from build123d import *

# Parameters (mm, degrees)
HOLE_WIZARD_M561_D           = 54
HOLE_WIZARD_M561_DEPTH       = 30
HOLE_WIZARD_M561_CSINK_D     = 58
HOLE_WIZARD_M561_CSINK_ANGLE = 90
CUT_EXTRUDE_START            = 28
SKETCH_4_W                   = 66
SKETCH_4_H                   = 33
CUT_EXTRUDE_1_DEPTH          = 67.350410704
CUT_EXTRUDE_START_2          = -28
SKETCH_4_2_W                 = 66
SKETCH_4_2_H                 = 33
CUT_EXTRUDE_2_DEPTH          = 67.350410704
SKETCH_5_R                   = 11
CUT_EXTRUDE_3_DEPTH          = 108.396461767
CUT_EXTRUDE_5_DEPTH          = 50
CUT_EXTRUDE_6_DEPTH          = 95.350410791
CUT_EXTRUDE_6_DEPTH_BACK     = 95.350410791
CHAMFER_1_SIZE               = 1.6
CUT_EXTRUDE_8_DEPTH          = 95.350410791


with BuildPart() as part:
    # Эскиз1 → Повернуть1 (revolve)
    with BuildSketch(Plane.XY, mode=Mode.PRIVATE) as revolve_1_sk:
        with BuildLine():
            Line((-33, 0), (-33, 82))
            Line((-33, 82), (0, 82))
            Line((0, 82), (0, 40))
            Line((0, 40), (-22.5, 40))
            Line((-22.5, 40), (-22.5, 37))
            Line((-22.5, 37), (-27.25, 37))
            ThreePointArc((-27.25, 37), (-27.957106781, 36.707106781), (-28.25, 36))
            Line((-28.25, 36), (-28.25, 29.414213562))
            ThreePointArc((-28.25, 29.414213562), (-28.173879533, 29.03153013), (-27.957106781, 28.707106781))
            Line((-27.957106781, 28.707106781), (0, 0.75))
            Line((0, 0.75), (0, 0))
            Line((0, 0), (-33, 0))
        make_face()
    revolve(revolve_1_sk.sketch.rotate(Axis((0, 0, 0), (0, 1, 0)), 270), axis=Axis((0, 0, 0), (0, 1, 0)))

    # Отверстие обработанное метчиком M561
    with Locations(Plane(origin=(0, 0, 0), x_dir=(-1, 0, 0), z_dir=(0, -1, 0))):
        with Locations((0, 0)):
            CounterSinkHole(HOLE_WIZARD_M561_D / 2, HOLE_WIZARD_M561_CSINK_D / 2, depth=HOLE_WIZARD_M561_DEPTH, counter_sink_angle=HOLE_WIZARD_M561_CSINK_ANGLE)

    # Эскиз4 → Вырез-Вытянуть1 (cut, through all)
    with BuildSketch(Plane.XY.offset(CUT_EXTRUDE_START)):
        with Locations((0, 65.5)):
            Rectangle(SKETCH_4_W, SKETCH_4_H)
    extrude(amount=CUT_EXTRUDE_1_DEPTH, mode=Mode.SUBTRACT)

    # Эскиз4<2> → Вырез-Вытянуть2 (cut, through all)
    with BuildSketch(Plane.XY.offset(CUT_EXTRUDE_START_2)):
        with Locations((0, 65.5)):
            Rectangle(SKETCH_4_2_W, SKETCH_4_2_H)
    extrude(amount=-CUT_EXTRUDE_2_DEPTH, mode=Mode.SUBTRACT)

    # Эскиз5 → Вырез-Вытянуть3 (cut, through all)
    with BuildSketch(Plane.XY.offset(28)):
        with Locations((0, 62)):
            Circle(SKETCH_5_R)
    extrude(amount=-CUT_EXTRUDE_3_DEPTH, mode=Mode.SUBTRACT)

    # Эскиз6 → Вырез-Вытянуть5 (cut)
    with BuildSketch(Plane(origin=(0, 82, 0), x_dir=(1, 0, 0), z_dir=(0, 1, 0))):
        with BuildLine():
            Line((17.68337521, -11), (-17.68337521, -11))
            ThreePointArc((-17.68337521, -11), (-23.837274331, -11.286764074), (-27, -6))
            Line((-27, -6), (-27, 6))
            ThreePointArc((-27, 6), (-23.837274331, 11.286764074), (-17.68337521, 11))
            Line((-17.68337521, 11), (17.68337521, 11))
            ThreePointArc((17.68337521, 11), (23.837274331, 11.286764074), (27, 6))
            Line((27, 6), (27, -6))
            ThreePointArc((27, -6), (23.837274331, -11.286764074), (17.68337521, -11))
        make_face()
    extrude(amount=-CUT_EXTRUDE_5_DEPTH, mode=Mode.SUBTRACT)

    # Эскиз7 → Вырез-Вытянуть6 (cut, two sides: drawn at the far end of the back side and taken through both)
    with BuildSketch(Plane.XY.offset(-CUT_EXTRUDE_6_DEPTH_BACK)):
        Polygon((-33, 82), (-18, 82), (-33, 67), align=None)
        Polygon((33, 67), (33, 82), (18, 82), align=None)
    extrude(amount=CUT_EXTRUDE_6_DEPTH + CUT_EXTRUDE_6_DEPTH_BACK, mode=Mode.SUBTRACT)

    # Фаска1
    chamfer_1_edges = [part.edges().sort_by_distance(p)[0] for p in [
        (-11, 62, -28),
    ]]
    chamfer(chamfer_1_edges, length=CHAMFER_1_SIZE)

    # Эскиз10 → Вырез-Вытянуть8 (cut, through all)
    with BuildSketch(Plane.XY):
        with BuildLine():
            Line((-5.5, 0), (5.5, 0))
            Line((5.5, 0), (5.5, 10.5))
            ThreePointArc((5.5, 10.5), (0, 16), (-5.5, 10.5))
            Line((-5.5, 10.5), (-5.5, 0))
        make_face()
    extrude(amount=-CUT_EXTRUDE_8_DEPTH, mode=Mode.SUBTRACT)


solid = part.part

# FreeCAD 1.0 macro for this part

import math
import FreeCAD as App
import Part
import Sketcher

V = App.Vector
Q = App.Units.Quantity


def edges_at(feature, points):
    """Names of the edges that pass closest to the given points."""
    edges = feature.Shape.Edges
    near = lambda p: min(range(len(edges)), key=lambda i: edges[i].distToShape(Part.Vertex(*p))[0])
    return sorted({f"Edge{near(p) + 1}" for p in points})


def add_polygon(sketch, points):
    """Adds a closed chain of lines whose ends are joined by coincident constraints."""
    first, n = sketch.GeometryCount, len(points)
    for a, b in zip(points, points[1:] + points[:1]):
        sketch.addGeometry(Part.LineSegment(App.Vector(*a, 0), App.Vector(*b, 0)), False)
    for i in range(n):
        sketch.addConstraint(Sketcher.Constraint("Coincident", first + i, 2, first + (i + 1) % n, 1))

doc = App.newDocument("Part")
params = doc.addObject("Spreadsheet::Sheet", "Params")
for row, (alias, value) in enumerate([
    ("sketch1_radius", "1 mm"),
    ("sketch1_width", "33 mm"),
    ("sketch1_height", "82 mm"),
    ("sketch1_height2", "3 mm"),
    ("sketch1_height3", "42 mm"),
    ("revolution_angle", "360 deg"),
    ("sketch2_diameter", "54 mm"),
    ("hole_diameter", "54 mm"),
    ("hole_depth", "30 mm"),
    ("hole_csink_diameter", "58 mm"),
    ("sketch3_width", "66 mm"),
    ("sketch3_height", "33 mm"),
    ("sketch4_width", "66 mm"),
    ("sketch4_height", "33 mm"),
    ("sketch5_diameter", "22 mm"),
    ("sketch6_radius", "6 mm"),
    ("sketch6_height", "12 mm"),
    ("pocket4_length", "50 mm"),
    ("sketch7_width", "15 mm"),
    ("chamfer_size", "1.6 mm"),
    ("sketch8_radius", "5.5 mm"),
    ("sketch8_height", "10.5 mm"),
], start=1):
    params.set(f"A{row}", alias)
    params.set(f"B{row}", "=" + value)
    params.setAlias(f"B{row}", alias)

body = doc.addObject("PartDesign::Body", "Body")

# Sketch on XY plane
sketch1 = body.newObject("Sketcher::SketchObject", "Sketch")
sketch1.AttachmentSupport = (doc.getObject("XY_Plane"), [""])
sketch1.MapMode = "FlatFace"
sketch1.addGeometry([
    Part.LineSegment(V(-33, 82, 0), V(-33, 0, 0)),  # 0
    Part.LineSegment(V(-33, 0, 0), V(0, 0, 0)),  # 1
    Part.LineSegment(V(0, 0, 0), V(0, 0.8, 0)),  # 2
    Part.LineSegment(V(0, 0.8, 0), V(-28, 28.7, 0)),  # 3
    Part.ArcOfCircle(Part.Circle(V(-27.3, 29.4, 0), V(0, 0, 1), 1), math.radians(180), math.radians(225)),  # 4
    Part.LineSegment(V(-28.2, 29.4, 0), V(-28.2, 36, 0)),  # 5
    Part.ArcOfCircle(Part.Circle(V(-27.2, 36, 0), V(0, 0, 1), 1), math.radians(90), math.radians(180)),  # 6
    Part.LineSegment(V(-27.2, 37, 0), V(-22.5, 37, 0)),  # 7
    Part.LineSegment(V(-22.5, 37, 0), V(-22.5, 40, 0)),  # 8
    Part.LineSegment(V(-22.5, 40, 0), V(0, 40, 0)),  # 9
    Part.LineSegment(V(0, 40, 0), V(0, 82, 0)),  # 10
    Part.LineSegment(V(0, 82, 0), V(-33, 82, 0)),  # 11
], False)
sketch1.addConstraint([
    Sketcher.Constraint("Coincident", 0, 2, 1, 1),
    Sketcher.Constraint("Coincident", 1, 2, 2, 1),
    Sketcher.Constraint("Coincident", 2, 2, 3, 1),
    Sketcher.Constraint("Tangent", 3, 2, 4, 2),
    Sketcher.Constraint("Tangent", 4, 1, 5, 1),
    Sketcher.Constraint("Tangent", 5, 2, 6, 2),
    Sketcher.Constraint("Tangent", 6, 1, 7, 1),
    Sketcher.Constraint("Coincident", 7, 2, 8, 1),
    Sketcher.Constraint("Coincident", 8, 2, 9, 1),
    Sketcher.Constraint("Coincident", 9, 2, 10, 1),
    Sketcher.Constraint("Coincident", 10, 2, 11, 1),
    Sketcher.Constraint("Coincident", 11, 2, 0, 1),
    Sketcher.Constraint("Vertical", 0),
    Sketcher.Constraint("Horizontal", 1),
    Sketcher.Constraint("Vertical", 2),
    Sketcher.Constraint("Vertical", 5),
    Sketcher.Constraint("Horizontal", 7),
    Sketcher.Constraint("Vertical", 8),
    Sketcher.Constraint("Horizontal", 9),
    Sketcher.Constraint("Vertical", 10),
    Sketcher.Constraint("Horizontal", 11),
    Sketcher.Constraint("Coincident", 1, 2, -1, 1),
    Sketcher.Constraint("Equal", 4, 6),
    Sketcher.Constraint("PointOnObject", 9, 2, -2),
    Sketcher.Constraint("Radius", 4, 1.0),
    Sketcher.Constraint("DistanceX", 1, 1, 1, 2, 33.0),
    Sketcher.Constraint("DistanceY", 0, 2, 0, 1, 82.0),
    Sketcher.Constraint("DistanceY", 8, 1, 8, 2, 3.0),
    Sketcher.Constraint("DistanceY", 10, 1, 10, 2, 42.0),
    Sketcher.Constraint("Angle", 3, Q("135 deg")),
    Sketcher.Constraint("DistanceX", 9, 1, 9, 2, 22.5),
    Sketcher.Constraint("DistanceX", 7, 1, 7, 2, 4.75),
    Sketcher.Constraint("DistanceY", 2, 1, 2, 2, 0.75),
])
sketch1.setExpression("Constraints[24]", "Params.sketch1_radius")
sketch1.setExpression("Constraints[25]", "Params.sketch1_width")
sketch1.setExpression("Constraints[26]", "Params.sketch1_height")
sketch1.setExpression("Constraints[27]", "Params.sketch1_height2")
sketch1.setExpression("Constraints[28]", "Params.sketch1_height3")
revolution = body.newObject("PartDesign::Revolution", "Revolution")
revolution.Profile = sketch1
revolution.ReferenceAxis = (sketch1, ["V_Axis"])
revolution.setExpression("Angle", "Params.revolution_angle")

# Sketch on XZ plane
sketch2 = body.newObject("Sketcher::SketchObject", "Sketch001")
sketch2.AttachmentSupport = (doc.getObject("XZ_Plane"), [""])
sketch2.MapMode = "FlatFace"
sketch2.addGeometry(Part.Circle(V(0, 0, 0), V(0, 0, 1), 27), False)
sketch2.addConstraint([
    Sketcher.Constraint("Coincident", 0, 3, -1, 1),
    Sketcher.Constraint("Diameter", 0, 54.0),
])
sketch2.setExpression("Constraints[1]", "Params.sketch2_diameter")
doc.recompute()
hole = body.newObject("PartDesign::Hole", "Hole")
hole.Profile = sketch2
hole.ThreadType = "None"
hole.setExpression("Diameter", "Params.hole_diameter")
hole.DepthType = "Dimension"
hole.setExpression("Depth", "Params.hole_depth")
hole.DrillPoint = "Flat"
hole.HoleCutType = "Countersink"
hole.setExpression("HoleCutDiameter", "Params.hole_csink_diameter")
hole.HoleCutCountersinkAngle = 90

# Sketch on XY plane
sketch3 = body.newObject("Sketcher::SketchObject", "Sketch002")
sketch3.AttachmentSupport = (doc.getObject("XY_Plane"), [""])
sketch3.MapMode = "FlatFace"
sketch3.AttachmentOffset = App.Placement(V(0, 0, 28), App.Rotation())
add_polygon(sketch3, [(-33, 82), (-33, 49), (33, 49), (33, 82)])  # lines 0-3
sketch3.addConstraint([
    Sketcher.Constraint("Vertical", 0),
    Sketcher.Constraint("Horizontal", 1),
    Sketcher.Constraint("Vertical", 2),
    Sketcher.Constraint("Horizontal", 3),
    Sketcher.Constraint("DistanceX", 1, 1, 1, 2, 66.0),
    Sketcher.Constraint("DistanceY", 0, 2, 0, 1, 33.0),
    Sketcher.Constraint("DistanceX", 0, 2, -1, 1, 33.0),
    Sketcher.Constraint("DistanceY", -1, 1, 0, 2, 49.0),
])
sketch3.setExpression("Constraints[8]", "Params.sketch3_width")
sketch3.setExpression("Constraints[9]", "Params.sketch3_height")
pocket1 = body.newObject("PartDesign::Pocket", "Pocket")
pocket1.Profile = sketch3
pocket1.Type = "ThroughAll"
pocket1.Reversed = True

# Sketch on XY plane
sketch4 = body.newObject("Sketcher::SketchObject", "Sketch003")
sketch4.AttachmentSupport = (doc.getObject("XY_Plane"), [""])
sketch4.MapMode = "FlatFace"
sketch4.AttachmentOffset = App.Placement(V(0, 0, -28), App.Rotation())
add_polygon(sketch4, [(-33, 82), (-33, 49), (33, 49), (33, 82)])  # lines 0-3
sketch4.addConstraint([
    Sketcher.Constraint("Vertical", 0),
    Sketcher.Constraint("Horizontal", 1),
    Sketcher.Constraint("Vertical", 2),
    Sketcher.Constraint("Horizontal", 3),
    Sketcher.Constraint("DistanceX", 1, 1, 1, 2, 66.0),
    Sketcher.Constraint("DistanceY", 0, 2, 0, 1, 33.0),
    Sketcher.Constraint("DistanceX", 0, 2, -1, 1, 33.0),
    Sketcher.Constraint("DistanceY", -1, 1, 0, 2, 49.0),
])
sketch4.setExpression("Constraints[8]", "Params.sketch4_width")
sketch4.setExpression("Constraints[9]", "Params.sketch4_height")
pocket2 = body.newObject("PartDesign::Pocket", "Pocket001")
pocket2.Profile = sketch4
pocket2.Type = "ThroughAll"

# Sketch on XY plane
sketch5 = body.newObject("Sketcher::SketchObject", "Sketch004")
sketch5.AttachmentSupport = (doc.getObject("XY_Plane"), [""])
sketch5.MapMode = "FlatFace"
sketch5.AttachmentOffset = App.Placement(V(0, 0, 28), App.Rotation())
sketch5.addGeometry(Part.Circle(V(0, 62, 0), V(0, 0, 1), 11), False)
sketch5.addConstraint([
    Sketcher.Constraint("PointOnObject", 0, 3, -2),
    Sketcher.Constraint("Diameter", 0, 22.0),
    Sketcher.Constraint("DistanceY", -1, 1, 0, 3, 62.0),
])
sketch5.setExpression("Constraints[1]", "Params.sketch5_diameter")
pocket3 = body.newObject("PartDesign::Pocket", "Pocket002")
pocket3.Profile = sketch5
pocket3.Type = "ThroughAll"

# Sketch on XZ plane
sketch6 = body.newObject("Sketcher::SketchObject", "Sketch005")
sketch6.AttachmentSupport = (doc.getObject("XZ_Plane"), [""])
sketch6.MapMode = "FlatFace"
sketch6.AttachmentOffset = App.Placement(V(0, 0, -82), App.Rotation())
sketch6.addGeometry([
    Part.LineSegment(V(-18, 11, 0), V(18, 11, 0)),  # 0
    Part.ArcOfCircle(Part.Circle(V(21, 6, 0), V(0, 0, 1), 6), math.radians(0), math.radians(124)),  # 1
    Part.LineSegment(V(27, 6, 0), V(27, -6, 0)),  # 2
    Part.ArcOfCircle(Part.Circle(V(21, -6, 0), V(0, 0, 1), 6), math.radians(-124), math.radians(0)),  # 3
    Part.LineSegment(V(18, -11, 0), V(-18, -11, 0)),  # 4
    Part.ArcOfCircle(Part.Circle(V(-21, -6, 0), V(0, 0, 1), 6), math.radians(180), math.radians(304)),  # 5
    Part.LineSegment(V(-27, -6, 0), V(-27, 6, 0)),  # 6
    Part.ArcOfCircle(Part.Circle(V(-21, 6, 0), V(0, 0, 1), 6), math.radians(56), math.radians(180)),  # 7
], False)
sketch6.addConstraint([
    Sketcher.Constraint("Coincident", 0, 2, 1, 2),
    Sketcher.Constraint("Tangent", 1, 1, 2, 1),
    Sketcher.Constraint("Tangent", 2, 2, 3, 2),
    Sketcher.Constraint("Coincident", 3, 1, 4, 1),
    Sketcher.Constraint("Coincident", 4, 2, 5, 2),
    Sketcher.Constraint("Tangent", 5, 1, 6, 1),
    Sketcher.Constraint("Tangent", 6, 2, 7, 2),
    Sketcher.Constraint("Coincident", 7, 1, 0, 1),
    Sketcher.Constraint("Horizontal", 0),
    Sketcher.Constraint("Vertical", 2),
    Sketcher.Constraint("Horizontal", 4),
    Sketcher.Constraint("Vertical", 6),
    Sketcher.Constraint("Equal", 1, 3),
    Sketcher.Constraint("Equal", 3, 5),
    Sketcher.Constraint("Equal", 5, 7),
    Sketcher.Constraint("Symmetric", 1, 3, 5, 3, -1, 1),
    Sketcher.Constraint("Symmetric", 3, 1, 7, 1, -1, 1),
    Sketcher.Constraint("Horizontal", 3, 3, 5, 3),
    Sketcher.Constraint("Radius", 1, 6.0),
    Sketcher.Constraint("DistanceY", 2, 2, 2, 1, 12.0),
    Sketcher.Constraint("DistanceX", -1, 1, 1, 3, 21.0),
    Sketcher.Constraint("DistanceY", -1, 1, 0, 2, 11.0),
])
sketch6.setExpression("Constraints[18]", "Params.sketch6_radius")
sketch6.setExpression("Constraints[19]", "Params.sketch6_height")
pocket4 = body.newObject("PartDesign::Pocket", "Pocket003")
pocket4.Profile = sketch6
pocket4.setExpression("Length", "Params.pocket4_length")
pocket4.Reversed = True

# Sketch on XY plane
sketch7 = body.newObject("Sketcher::SketchObject", "Sketch006")
sketch7.AttachmentSupport = (doc.getObject("XY_Plane"), [""])
sketch7.MapMode = "FlatFace"
add_polygon(sketch7, [(-18, 82), (-33, 82), (-33, 67)])  # lines 0-2
add_polygon(sketch7, [(33, 67), (33, 82), (18, 82)])  # lines 3-5
sketch7.addConstraint([
    Sketcher.Constraint("Horizontal", 0),
    Sketcher.Constraint("Vertical", 1),
    Sketcher.Constraint("Vertical", 3),
    Sketcher.Constraint("Horizontal", 4),
    Sketcher.Constraint("Symmetric", 0, 2, 3, 2, -2),
    Sketcher.Constraint("Perpendicular", 2, 5),
    Sketcher.Constraint("Horizontal", 1, 2, 5, 2),
    Sketcher.Constraint("Equal", 0, 4),
    Sketcher.Constraint("DistanceX", 0, 2, 0, 1, 15.0),
    Sketcher.Constraint("DistanceX", 0, 2, -1, 1, 33.0),
    Sketcher.Constraint("DistanceY", -1, 1, 0, 2, 82.0),
])
sketch7.setExpression("Constraints[14]", "Params.sketch7_width")
pocket5 = body.newObject("PartDesign::Pocket", "Pocket004")
pocket5.Profile = sketch7
pocket5.Type = "ThroughAll"
pocket5.Midplane = True
doc.recompute()

chamfer = body.newObject("PartDesign::Chamfer", "Chamfer")
chamfer.Base = (pocket5, edges_at(pocket5, [(-11, 62, -28)]))
chamfer.setExpression("Size", "Params.chamfer_size")

# Sketch on XY plane
sketch8 = body.newObject("Sketcher::SketchObject", "Sketch007")
sketch8.AttachmentSupport = (doc.getObject("XY_Plane"), [""])
sketch8.MapMode = "FlatFace"
sketch8.addGeometry([
    Part.LineSegment(V(-6, 0, 0), V(6, 0, 0)),
    Part.LineSegment(V(6, 0, 0), V(6, 10, 0)),
    Part.ArcOfCircle(Part.Circle(V(0, 10, 0), V(0, 0, 1), 6), math.radians(0), math.radians(180)),
    Part.LineSegment(V(-6, 10, 0), V(-6, 0, 0)),
], False)
sketch8.addConstraint([
    Sketcher.Constraint("Coincident", 0, 2, 1, 1),
    Sketcher.Constraint("Tangent", 1, 2, 2, 1),
    Sketcher.Constraint("Tangent", 2, 2, 3, 1),
    Sketcher.Constraint("Coincident", 3, 2, 0, 1),
    Sketcher.Constraint("Horizontal", 0),
    Sketcher.Constraint("Vertical", 1),
    Sketcher.Constraint("Vertical", 3),
    Sketcher.Constraint("Symmetric", 0, 2, 3, 2, -1, 1),
    Sketcher.Constraint("Radius", 2, 5.5),
    Sketcher.Constraint("DistanceY", 1, 1, 1, 2, 10.5),
])
sketch8.setExpression("Constraints[8]", "Params.sketch8_radius")
sketch8.setExpression("Constraints[9]", "Params.sketch8_height")
pocket6 = body.newObject("PartDesign::Pocket", "Pocket005")
pocket6.Profile = sketch8
pocket6.Type = "ThroughAll"

doc.recompute()
